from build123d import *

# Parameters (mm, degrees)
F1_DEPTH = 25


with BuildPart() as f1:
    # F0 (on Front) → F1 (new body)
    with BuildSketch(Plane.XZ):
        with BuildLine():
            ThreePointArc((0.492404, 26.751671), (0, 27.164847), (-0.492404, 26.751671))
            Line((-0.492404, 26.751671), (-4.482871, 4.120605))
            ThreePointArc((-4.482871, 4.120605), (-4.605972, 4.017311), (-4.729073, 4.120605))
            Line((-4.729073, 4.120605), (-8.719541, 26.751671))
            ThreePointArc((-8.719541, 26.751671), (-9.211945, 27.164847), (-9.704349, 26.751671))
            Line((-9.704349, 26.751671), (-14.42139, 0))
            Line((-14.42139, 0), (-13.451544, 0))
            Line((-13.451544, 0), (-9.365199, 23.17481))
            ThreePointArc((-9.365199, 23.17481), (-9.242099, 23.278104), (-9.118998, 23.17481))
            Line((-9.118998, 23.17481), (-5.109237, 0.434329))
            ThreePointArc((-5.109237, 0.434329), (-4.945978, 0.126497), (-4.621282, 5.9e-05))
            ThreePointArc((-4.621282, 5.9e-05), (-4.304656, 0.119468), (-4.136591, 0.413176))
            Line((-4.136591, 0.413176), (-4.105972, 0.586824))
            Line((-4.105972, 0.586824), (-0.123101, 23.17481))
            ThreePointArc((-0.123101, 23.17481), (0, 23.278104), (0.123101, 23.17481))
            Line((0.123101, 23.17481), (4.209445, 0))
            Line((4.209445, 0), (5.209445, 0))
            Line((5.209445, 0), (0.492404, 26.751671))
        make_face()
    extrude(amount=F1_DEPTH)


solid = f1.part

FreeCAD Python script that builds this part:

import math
import FreeCAD as App
import Part
import Sketcher
Q = App.Units.Quantity

doc = App.newDocument("Part")
params = doc.addObject("Spreadsheet::Sheet", "Params")
for row, (alias, value) in enumerate([
    ("sketch1_radius", "0.5 mm"),
    ("sketch1_width", "1 mm"),
    ("pad1_length", "25 mm"),
], start=1):
    params.set(f"A{row}", alias)
    params.set(f"B{row}", "=" + value)
    params.setAlias(f"B{row}", alias)

body = doc.addObject("PartDesign::Body", "Body")

# Sketch on XZ plane
sketch1 = body.newObject("Sketcher::SketchObject", "Sketch")
sketch1.AttachmentSupport = (doc.getObject("XZ_Plane"), [""])
sketch1.MapMode = "FlatFace"
sketch1.addGeometry(Part.ArcOfCircle(Part.Circle(App.Vector(0, 26.664847, 0), App.Vector(0, 0, 1), 0.5), math.radians(10.000002), math.radians(169.999998)), False)
sketch1.addGeometry(Part.LineSegment(App.Vector(-0.492404, 26.751671, 0), App.Vector(-4.482871, 4.120605, 0)), False)
sketch1.addGeometry(Part.ArcOfCircle(Part.Circle(App.Vector(-4.605972, 4.142311, 0), App.Vector(0, 0, 1), 0.125), math.radians(-169.999998), math.radians(-10.000002)), False)
sketch1.addGeometry(Part.LineSegment(App.Vector(-4.729073, 4.120605, 0), App.Vector(-8.719541, 26.751671, 0)), False)
sketch1.addGeometry(Part.ArcOfCircle(Part.Circle(App.Vector(-9.211945, 26.664847, 0), App.Vector(0, 0, 1), 0.5), math.radians(10.000002), math.radians(169.999998)), False)
sketch1.addGeometry(Part.LineSegment(App.Vector(-9.704349, 26.751671, 0), App.Vector(-14.42139, 0, 0)), False)
sketch1.addGeometry(Part.LineSegment(App.Vector(-14.42139, 0, 0), App.Vector(-13.451544, 0, 0)), False)
sketch1.addGeometry(Part.LineSegment(App.Vector(-13.451544, 0, 0), App.Vector(-9.365199, 23.17481, 0)), False)
sketch1.addGeometry(Part.ArcOfCircle(Part.Circle(App.Vector(-9.242099, 23.153105, 0), App.Vector(0, 0, 1), 0.124999), math.radians(9.999773), math.radians(170.000227)), False)
sketch1.addGeometry(Part.LineSegment(App.Vector(-9.118998, 23.17481, 0), App.Vector(-5.109237, 0.434329, 0)), False)
sketch1.addGeometry(Part.ArcOfCircle(Part.Circle(App.Vector(-4.613569, 0.499999, 0), App.Vector(0, 0, 1), 0.499999), math.radians(-172.452994), math.radians(-90.883867)), False)
sketch1.addGeometry(Part.ArcOfCircle(Part.Circle(App.Vector(-4.628995, 0.5, 0), App.Vector(0, 0, 1), 0.5), math.radians(-89.116123), math.radians(-9.999932)), False)
sketch1.addGeometry(Part.LineSegment(App.Vector(-4.136591, 0.413176, 0), App.Vector(-4.105972, 0.586824, 0)), False)
sketch1.addGeometry(Part.LineSegment(App.Vector(-4.105972, 0.586824, 0), App.Vector(-0.123101, 23.17481, 0)), False)
sketch1.addGeometry(Part.ArcOfCircle(Part.Circle(App.Vector(0, 23.153104, 0), App.Vector(0, 0, 1), 0.125), math.radians(10.000002), math.radians(169.999998)), False)
sketch1.addGeometry(Part.LineSegment(App.Vector(0.123101, 23.17481, 0), App.Vector(4.209445, 0, 0)), False)
sketch1.addGeometry(Part.LineSegment(App.Vector(4.209445, 0, 0), App.Vector(5.209445, 0, 0)), False)
sketch1.addGeometry(Part.LineSegment(App.Vector(5.209445, 0, 0), App.Vector(0.492404, 26.751671, 0)), False)
sketch1.addConstraint(Sketcher.Constraint("Tangent", 0, 2, 1, 1))
sketch1.addConstraint(Sketcher.Constraint("Tangent", 1, 2, 2, 2))
sketch1.addConstraint(Sketcher.Constraint("Tangent", 2, 1, 3, 1))
sketch1.addConstraint(Sketcher.Constraint("Tangent", 3, 2, 4, 1))
sketch1.addConstraint(Sketcher.Constraint("Tangent", 4, 2, 5, 1))
sketch1.addConstraint(Sketcher.Constraint("Coincident", 5, 2, 6, 1))
sketch1.addConstraint(Sketcher.Constraint("Coincident", 6, 2, 7, 1))
sketch1.addConstraint(Sketcher.Constraint("Coincident", 7, 2, 8, 2))
sketch1.addConstraint(Sketcher.Constraint("Coincident", 8, 1, 9, 1))
sketch1.addConstraint(Sketcher.Constraint("Coincident", 9, 2, 10, 1))
sketch1.addConstraint(Sketcher.Constraint("Coincident", 10, 2, 11, 1))
sketch1.addConstraint(Sketcher.Constraint("Coincident", 11, 2, 12, 1))
sketch1.addConstraint(Sketcher.Constraint("Coincident", 12, 2, 13, 1))
sketch1.addConstraint(Sketcher.Constraint("Tangent", 13, 2, 14, 2))
sketch1.addConstraint(Sketcher.Constraint("Tangent", 14, 1, 15, 1))
sketch1.addConstraint(Sketcher.Constraint("Coincident", 15, 2, 16, 1))
sketch1.addConstraint(Sketcher.Constraint("Coincident", 16, 2, 17, 1))
sketch1.addConstraint(Sketcher.Constraint("Tangent", 17, 2, 0, 1))
sketch1.addConstraint(Sketcher.Constraint("Horizontal", 6))
sketch1.addConstraint(Sketcher.Constraint("Horizontal", 16))
sketch1.addConstraint(Sketcher.Constraint("Equal", 0, 4))
sketch1.addConstraint(Sketcher.Constraint("Equal", 2, 8))
sketch1.addConstraint(Sketcher.Constraint("Equal", 4, 10))
sketch1.addConstraint(Sketcher.Constraint("Equal", 10, 11))
sketch1.addConstraint(Sketcher.Constraint("Equal", 8, 14))
sketch1.addConstraint(Sketcher.Constraint("Symmetric", 13, 2, 14, 1, -2))
sketch1.addConstraint(Sketcher.Constraint("Symmetric", 0, 2, 17, 2, -2))
sketch1.addConstraint(Sketcher.Constraint("PointOnObject", 5, 2, -1))
sketch1.addConstraint(Sketcher.Constraint("PointOnObject", 15, 2, -1))
sketch1.addConstraint(Sketcher.Constraint("Parallel", 1, 5))
sketch1.addConstraint(Sketcher.Constraint("Parallel", 5, 7))
sketch1.addConstraint(Sketcher.Constraint("Parallel", 3, 9))
sketch1.addConstraint(Sketcher.Constraint("Parallel", 7, 12))
sketch1.addConstraint(Sketcher.Constraint("Parallel", 12, 13))
sketch1.addConstraint(Sketcher.Constraint("Parallel", 9, 15))
sketch1.addConstraint(Sketcher.Constraint("Horizontal", 0, 3, 4, 3))
sketch1.addConstraint(Sketcher.Constraint("Horizontal", 10, 3, 11, 3))
sketch1.addConstraint(Sketcher.Constraint("Horizontal", 8, 3, 14, 3))
sketch1.addConstraint(Sketcher.Constraint("Horizontal", 7, 2, 8, 1))
sketch1.addConstraint(Sketcher.Constraint("Horizontal", 8, 1, 13, 2))
sketch1.addConstraint(Sketcher.Constraint("Radius", 0, Q("0.5 mm")))
sketch1.addConstraint(Sketcher.Constraint("DistanceX", 16, 1, 16, 2, Q("1 mm")))
sketch1.addConstraint(Sketcher.Constraint("Angle", 1, Q("-99.999999 deg")))
sketch1.addConstraint(Sketcher.Constraint("Radius", 2, Q("0.125 mm")))
sketch1.addConstraint(Sketcher.Constraint("DistanceY", -1, 1, 10, 3, Q("0.499999 mm")))
sketch1.addConstraint(Sketcher.Constraint("DistanceX", 8, 1, -1, 1, Q("9.118998 mm")))
sketch1.addConstraint(Sketcher.Constraint("DistanceX", 10, 3, 1, 2, Q("0.130698 mm")))
sketch1.addConstraint(Sketcher.Constraint("DistanceY", 1, 2, 14, 3, Q("19.032499 mm")))
sketch1.addConstraint(Sketcher.Constraint("Distance", 5, Q("27.164359 mm")))
sketch1.addConstraint(Sketcher.Constraint("DistanceX", 11, 2, -1, 1, Q("4.136591 mm")))
sketch1.addConstraint(Sketcher.Constraint("DistanceX", 11, 2, 12, 2, Q("0.030619 mm")))
sketch1.setExpression("Constraints[40]", "Params.sketch1_radius")
sketch1.setExpression("Constraints[41]", "Params.sketch1_width")
pad1 = body.newObject("PartDesign::Pad", "Pad")
pad1.Profile = sketch1
pad1.setExpression("Length", "Params.pad1_length")

doc.recompute()
